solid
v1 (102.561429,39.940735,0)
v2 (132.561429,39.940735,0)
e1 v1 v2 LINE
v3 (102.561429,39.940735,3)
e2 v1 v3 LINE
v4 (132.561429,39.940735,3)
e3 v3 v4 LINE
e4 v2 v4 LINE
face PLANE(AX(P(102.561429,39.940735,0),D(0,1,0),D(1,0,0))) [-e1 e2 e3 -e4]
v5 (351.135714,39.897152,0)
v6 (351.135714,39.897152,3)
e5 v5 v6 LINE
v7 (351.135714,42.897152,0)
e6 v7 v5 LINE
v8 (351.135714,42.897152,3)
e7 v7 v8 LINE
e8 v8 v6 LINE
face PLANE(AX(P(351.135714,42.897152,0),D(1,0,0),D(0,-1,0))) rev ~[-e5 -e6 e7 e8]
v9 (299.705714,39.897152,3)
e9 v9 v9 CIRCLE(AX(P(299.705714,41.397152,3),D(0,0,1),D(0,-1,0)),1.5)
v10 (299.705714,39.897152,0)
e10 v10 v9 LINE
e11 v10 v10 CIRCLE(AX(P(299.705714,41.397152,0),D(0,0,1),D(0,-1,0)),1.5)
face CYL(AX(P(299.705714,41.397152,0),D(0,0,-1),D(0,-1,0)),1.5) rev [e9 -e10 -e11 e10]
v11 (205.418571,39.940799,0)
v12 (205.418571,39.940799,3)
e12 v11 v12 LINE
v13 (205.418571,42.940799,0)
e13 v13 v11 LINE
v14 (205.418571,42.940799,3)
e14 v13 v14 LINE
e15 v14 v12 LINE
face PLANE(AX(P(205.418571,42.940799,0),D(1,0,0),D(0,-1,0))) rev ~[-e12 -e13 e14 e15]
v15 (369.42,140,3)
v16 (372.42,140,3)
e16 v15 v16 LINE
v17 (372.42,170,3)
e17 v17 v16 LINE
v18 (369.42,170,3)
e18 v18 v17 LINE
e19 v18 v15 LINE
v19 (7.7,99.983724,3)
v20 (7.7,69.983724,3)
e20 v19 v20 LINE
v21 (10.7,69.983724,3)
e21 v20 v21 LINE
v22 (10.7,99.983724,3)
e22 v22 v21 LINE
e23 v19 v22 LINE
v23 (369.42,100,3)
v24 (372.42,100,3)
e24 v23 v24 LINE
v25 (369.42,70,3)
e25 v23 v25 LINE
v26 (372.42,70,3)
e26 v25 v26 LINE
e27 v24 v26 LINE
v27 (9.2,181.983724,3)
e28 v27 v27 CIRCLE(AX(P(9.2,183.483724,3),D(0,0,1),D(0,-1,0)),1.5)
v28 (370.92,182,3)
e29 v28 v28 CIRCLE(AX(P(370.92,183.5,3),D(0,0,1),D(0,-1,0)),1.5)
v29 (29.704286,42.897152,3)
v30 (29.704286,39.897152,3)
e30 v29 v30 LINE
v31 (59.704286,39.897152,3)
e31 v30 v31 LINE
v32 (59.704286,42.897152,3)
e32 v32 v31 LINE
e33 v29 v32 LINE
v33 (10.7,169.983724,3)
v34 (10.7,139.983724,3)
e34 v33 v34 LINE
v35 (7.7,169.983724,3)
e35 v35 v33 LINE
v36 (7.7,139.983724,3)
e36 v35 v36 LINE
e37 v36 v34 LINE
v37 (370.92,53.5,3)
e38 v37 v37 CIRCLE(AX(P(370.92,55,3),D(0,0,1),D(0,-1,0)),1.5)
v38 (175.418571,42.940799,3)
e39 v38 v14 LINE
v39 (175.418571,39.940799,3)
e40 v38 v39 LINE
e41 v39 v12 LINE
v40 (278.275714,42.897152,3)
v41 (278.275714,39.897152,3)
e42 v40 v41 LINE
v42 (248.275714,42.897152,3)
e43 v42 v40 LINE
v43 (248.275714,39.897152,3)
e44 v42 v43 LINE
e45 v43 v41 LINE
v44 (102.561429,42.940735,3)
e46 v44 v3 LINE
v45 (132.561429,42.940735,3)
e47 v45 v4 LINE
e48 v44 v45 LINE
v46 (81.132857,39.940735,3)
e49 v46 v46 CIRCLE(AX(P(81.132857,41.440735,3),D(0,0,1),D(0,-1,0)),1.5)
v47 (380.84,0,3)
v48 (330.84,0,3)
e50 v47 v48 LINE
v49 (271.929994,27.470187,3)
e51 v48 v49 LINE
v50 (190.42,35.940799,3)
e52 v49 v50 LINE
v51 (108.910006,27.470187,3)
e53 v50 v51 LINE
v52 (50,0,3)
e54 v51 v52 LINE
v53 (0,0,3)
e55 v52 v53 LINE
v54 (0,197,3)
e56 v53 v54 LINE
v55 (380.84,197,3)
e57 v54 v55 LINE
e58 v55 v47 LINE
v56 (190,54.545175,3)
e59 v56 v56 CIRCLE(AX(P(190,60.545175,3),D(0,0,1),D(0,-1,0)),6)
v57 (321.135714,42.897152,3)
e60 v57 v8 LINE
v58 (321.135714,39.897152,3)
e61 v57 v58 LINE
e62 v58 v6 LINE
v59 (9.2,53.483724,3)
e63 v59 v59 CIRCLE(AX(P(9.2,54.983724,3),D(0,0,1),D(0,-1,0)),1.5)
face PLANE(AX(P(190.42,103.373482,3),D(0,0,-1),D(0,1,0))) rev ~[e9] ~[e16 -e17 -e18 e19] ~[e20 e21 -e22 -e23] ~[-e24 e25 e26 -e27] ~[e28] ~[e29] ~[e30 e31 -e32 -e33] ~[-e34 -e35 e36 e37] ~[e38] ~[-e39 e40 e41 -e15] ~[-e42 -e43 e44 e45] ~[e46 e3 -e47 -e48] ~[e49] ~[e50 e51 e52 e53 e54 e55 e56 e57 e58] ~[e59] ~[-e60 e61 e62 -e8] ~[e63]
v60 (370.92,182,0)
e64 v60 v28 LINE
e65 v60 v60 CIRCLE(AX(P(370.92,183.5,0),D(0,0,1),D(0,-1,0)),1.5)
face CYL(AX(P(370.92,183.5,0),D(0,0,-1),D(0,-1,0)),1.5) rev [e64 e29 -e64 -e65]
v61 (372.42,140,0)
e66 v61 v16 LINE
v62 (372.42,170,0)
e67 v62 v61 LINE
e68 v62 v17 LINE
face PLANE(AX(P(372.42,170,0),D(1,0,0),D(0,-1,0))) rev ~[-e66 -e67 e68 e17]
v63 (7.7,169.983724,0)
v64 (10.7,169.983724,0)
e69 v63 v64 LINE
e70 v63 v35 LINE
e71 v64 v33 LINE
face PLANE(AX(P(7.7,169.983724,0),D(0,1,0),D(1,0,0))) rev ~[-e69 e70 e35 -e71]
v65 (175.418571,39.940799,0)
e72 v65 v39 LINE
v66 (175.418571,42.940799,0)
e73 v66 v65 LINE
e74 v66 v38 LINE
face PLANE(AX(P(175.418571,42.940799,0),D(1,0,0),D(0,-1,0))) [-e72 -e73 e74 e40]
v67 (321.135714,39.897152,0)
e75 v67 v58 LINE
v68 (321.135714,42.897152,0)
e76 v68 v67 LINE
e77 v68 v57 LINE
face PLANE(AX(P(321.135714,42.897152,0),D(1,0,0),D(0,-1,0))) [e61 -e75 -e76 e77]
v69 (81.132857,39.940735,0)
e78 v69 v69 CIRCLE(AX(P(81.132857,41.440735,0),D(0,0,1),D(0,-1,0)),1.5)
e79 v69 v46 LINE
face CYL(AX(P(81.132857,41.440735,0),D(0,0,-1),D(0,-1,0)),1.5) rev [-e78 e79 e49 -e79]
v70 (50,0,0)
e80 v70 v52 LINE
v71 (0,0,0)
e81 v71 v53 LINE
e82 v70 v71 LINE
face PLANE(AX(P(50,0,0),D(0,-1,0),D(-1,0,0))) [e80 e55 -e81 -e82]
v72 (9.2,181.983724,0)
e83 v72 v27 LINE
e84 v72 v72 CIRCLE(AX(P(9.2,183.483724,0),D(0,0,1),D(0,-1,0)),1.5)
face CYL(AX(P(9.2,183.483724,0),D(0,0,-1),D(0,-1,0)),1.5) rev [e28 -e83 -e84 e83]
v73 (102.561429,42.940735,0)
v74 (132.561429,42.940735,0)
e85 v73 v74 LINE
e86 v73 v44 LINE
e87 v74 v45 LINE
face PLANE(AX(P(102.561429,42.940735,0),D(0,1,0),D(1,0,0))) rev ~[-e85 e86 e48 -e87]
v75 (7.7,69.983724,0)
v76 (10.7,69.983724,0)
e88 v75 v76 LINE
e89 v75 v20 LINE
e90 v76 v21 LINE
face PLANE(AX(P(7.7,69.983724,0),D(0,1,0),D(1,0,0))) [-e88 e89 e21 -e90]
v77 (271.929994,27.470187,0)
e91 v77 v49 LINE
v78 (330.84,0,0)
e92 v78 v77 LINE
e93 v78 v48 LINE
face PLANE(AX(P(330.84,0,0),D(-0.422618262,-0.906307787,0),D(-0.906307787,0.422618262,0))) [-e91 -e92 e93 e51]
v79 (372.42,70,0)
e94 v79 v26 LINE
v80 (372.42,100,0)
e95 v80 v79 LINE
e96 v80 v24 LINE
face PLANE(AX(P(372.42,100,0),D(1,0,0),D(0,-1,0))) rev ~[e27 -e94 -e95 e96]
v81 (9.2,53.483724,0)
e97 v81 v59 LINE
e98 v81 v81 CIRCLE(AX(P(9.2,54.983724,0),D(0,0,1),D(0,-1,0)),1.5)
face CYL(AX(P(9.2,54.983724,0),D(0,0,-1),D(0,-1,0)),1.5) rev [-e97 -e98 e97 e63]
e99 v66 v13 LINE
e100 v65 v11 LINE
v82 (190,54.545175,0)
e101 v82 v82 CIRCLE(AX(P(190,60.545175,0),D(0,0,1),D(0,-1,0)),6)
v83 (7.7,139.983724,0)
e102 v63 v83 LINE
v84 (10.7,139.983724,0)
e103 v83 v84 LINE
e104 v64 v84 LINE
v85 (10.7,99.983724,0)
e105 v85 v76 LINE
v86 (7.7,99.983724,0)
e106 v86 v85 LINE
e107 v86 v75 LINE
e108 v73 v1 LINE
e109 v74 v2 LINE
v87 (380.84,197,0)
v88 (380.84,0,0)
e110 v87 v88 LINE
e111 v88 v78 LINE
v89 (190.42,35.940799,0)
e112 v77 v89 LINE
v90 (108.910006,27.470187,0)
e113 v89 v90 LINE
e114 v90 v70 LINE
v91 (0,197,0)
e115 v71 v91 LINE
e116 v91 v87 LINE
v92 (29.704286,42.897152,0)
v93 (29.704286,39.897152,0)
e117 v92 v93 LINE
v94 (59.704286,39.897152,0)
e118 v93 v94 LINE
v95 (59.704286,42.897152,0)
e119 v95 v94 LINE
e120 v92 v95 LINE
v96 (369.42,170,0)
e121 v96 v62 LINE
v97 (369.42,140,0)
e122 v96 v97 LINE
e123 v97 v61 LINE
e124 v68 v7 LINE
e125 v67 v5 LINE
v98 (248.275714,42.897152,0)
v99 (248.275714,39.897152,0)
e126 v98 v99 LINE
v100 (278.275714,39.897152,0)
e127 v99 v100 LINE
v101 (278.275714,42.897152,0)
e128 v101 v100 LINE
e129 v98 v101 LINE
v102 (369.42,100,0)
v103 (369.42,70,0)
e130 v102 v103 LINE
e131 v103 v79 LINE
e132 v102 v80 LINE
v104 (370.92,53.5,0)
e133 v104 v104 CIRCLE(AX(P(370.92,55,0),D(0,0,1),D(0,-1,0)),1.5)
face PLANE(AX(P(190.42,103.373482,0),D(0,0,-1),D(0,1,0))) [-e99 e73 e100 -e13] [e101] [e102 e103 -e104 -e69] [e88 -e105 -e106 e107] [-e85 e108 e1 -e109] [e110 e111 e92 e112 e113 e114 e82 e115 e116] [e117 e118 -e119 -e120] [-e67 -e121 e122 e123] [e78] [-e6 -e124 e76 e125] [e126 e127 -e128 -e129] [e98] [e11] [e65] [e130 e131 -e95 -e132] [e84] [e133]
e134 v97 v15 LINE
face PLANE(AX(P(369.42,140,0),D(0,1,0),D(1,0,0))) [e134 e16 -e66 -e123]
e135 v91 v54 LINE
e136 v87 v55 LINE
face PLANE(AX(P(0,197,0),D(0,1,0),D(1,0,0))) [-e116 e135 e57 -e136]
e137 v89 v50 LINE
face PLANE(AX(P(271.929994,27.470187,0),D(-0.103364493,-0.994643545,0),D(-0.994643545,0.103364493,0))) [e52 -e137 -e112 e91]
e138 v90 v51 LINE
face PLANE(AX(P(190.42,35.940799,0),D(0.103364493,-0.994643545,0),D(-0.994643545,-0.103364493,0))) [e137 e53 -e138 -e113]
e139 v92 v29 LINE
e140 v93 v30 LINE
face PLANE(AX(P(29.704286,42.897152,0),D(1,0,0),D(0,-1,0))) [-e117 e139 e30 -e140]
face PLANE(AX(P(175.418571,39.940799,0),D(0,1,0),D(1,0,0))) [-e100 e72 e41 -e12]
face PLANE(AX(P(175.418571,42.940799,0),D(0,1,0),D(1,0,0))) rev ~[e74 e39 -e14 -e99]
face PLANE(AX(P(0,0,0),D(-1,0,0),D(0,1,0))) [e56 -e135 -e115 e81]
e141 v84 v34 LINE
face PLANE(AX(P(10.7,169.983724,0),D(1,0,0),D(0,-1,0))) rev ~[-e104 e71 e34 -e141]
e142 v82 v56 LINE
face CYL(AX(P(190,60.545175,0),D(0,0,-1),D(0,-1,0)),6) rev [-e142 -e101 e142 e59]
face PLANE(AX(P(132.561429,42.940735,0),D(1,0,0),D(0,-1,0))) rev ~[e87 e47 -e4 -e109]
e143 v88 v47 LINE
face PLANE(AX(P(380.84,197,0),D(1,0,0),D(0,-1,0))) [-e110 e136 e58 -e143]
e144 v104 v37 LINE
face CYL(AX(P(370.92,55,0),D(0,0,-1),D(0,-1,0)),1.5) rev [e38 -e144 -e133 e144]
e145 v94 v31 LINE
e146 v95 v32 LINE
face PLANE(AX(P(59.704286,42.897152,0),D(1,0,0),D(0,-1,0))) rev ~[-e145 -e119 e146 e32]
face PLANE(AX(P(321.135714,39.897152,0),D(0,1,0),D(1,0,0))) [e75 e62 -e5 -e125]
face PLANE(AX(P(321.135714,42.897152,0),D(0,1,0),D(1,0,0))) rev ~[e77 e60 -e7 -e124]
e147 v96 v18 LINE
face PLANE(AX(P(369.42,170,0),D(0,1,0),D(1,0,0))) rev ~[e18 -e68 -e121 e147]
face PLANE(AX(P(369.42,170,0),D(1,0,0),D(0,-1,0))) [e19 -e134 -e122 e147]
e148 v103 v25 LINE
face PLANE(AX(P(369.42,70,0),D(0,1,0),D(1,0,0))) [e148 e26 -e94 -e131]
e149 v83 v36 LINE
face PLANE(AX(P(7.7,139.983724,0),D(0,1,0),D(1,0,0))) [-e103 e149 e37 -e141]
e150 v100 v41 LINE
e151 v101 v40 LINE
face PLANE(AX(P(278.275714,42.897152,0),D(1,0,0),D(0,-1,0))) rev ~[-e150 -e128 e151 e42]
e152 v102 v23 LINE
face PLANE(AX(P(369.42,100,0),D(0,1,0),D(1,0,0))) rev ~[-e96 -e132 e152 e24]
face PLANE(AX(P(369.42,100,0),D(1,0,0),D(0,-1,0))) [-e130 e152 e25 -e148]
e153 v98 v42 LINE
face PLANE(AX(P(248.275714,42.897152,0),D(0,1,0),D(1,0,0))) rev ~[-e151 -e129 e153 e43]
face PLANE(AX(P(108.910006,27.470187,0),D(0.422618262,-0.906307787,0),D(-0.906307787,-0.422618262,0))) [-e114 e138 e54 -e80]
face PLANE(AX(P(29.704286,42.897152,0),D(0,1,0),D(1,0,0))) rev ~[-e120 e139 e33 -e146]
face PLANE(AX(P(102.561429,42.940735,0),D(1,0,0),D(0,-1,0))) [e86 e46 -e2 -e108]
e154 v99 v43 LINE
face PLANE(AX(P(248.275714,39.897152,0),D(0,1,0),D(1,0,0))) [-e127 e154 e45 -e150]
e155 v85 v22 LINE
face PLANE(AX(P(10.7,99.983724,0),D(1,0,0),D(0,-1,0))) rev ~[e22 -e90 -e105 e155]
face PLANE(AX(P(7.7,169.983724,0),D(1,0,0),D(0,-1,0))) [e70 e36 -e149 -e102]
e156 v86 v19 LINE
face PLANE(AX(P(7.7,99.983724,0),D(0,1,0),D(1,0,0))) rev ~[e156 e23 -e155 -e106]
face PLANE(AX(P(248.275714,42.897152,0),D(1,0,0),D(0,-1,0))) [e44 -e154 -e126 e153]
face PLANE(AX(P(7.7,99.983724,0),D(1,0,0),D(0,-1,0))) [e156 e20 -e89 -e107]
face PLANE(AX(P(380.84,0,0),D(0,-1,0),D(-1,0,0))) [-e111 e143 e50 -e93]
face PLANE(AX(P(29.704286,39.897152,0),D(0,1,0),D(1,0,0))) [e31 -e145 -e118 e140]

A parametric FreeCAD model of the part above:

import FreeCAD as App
import Part
import Sketcher
Q = App.Units.Quantity

doc = App.newDocument("Part")
body = doc.addObject("PartDesign::Body", "Body")

sketch1 = doc.addObject("Sketcher::SketchObject", "Sketch")
body.addObject(sketch1)
sketch1.AttachmentSupport = (doc.XY_Plane, [""])
sketch1.MapMode = "FlatFace"
sketch1.addGeometry([
    Part.LineSegment(App.Vector(380.8, 197, 0), App.Vector(0, 197, 0)),
    Part.LineSegment(App.Vector(0, 197, 0), App.Vector(0, 0, 0)),
    Part.LineSegment(App.Vector(0, 0, 0), App.Vector(50, 0, 0)),
    Part.LineSegment(App.Vector(50, 0, 0), App.Vector(108.9, 27.5, 0)),
    Part.LineSegment(App.Vector(108.9, 27.5, 0), App.Vector(190.4, 35.9, 0)),
    Part.LineSegment(App.Vector(190.4, 35.9, 0), App.Vector(271.9, 27.5, 0)),
    Part.LineSegment(App.Vector(271.9, 27.5, 0), App.Vector(330.8, 0, 0)),
    Part.LineSegment(App.Vector(330.8, 0, 0), App.Vector(380.8, 0, 0)),
    Part.LineSegment(App.Vector(380.8, 0, 0), App.Vector(380.8, 197, 0)),
    Part.Circle(App.Vector(9.2, 55, 0), App.Vector(0, 0, 1), 1.5),
    Part.LineSegment(App.Vector(29.7, 42.9, 0), App.Vector(59.7, 42.9, 0)),
    Part.LineSegment(App.Vector(59.7, 42.9, 0), App.Vector(59.7, 39.9, 0)),
    Part.LineSegment(App.Vector(59.7, 39.9, 0), App.Vector(29.7, 39.9, 0)),
    Part.LineSegment(App.Vector(29.7, 39.9, 0), App.Vector(29.7, 42.9, 0)),
    Part.Circle(App.Vector(81.1, 41.4, 0), App.Vector(0, 0, 1), 1.5),
    Part.LineSegment(App.Vector(7.7, 100, 0), App.Vector(10.7, 100, 0)),
    Part.LineSegment(App.Vector(10.7, 100, 0), App.Vector(10.7, 70, 0)),
    Part.LineSegment(App.Vector(10.7, 70, 0), App.Vector(7.7, 70, 0)),
    Part.LineSegment(App.Vector(7.7, 70, 0), App.Vector(7.7, 100, 0)),
    Part.LineSegment(App.Vector(102.6, 42.9, 0), App.Vector(132.6, 42.9, 0)),
    Part.LineSegment(App.Vector(132.6, 42.9, 0), App.Vector(132.6, 39.9, 0)),
    Part.LineSegment(App.Vector(132.6, 39.9, 0), App.Vector(102.6, 39.9, 0)),
    Part.LineSegment(App.Vector(102.6, 39.9, 0), App.Vector(102.6, 42.9, 0)),
    Part.Circle(App.Vector(190, 60.5, 0), App.Vector(0, 0, 1), 6),
    Part.LineSegment(App.Vector(7.7, 170, 0), App.Vector(10.7, 170, 0)),
    Part.LineSegment(App.Vector(10.7, 170, 0), App.Vector(10.7, 140, 0)),
    Part.LineSegment(App.Vector(10.7, 140, 0), App.Vector(7.7, 140, 0)),
    Part.LineSegment(App.Vector(7.7, 140, 0), App.Vector(7.7, 170, 0)),
    Part.Circle(App.Vector(9.2, 183.5, 0), App.Vector(0, 0, 1), 1.5),
    Part.LineSegment(App.Vector(175.4, 42.9, 0), App.Vector(205.4, 42.9, 0)),
    Part.LineSegment(App.Vector(205.4, 42.9, 0), App.Vector(205.4, 39.9, 0)),
    Part.LineSegment(App.Vector(205.4, 39.9, 0), App.Vector(175.4, 39.9, 0)),
    Part.LineSegment(App.Vector(175.4, 39.9, 0), App.Vector(175.4, 42.9, 0)),
    Part.LineSegment(App.Vector(248.3, 42.9, 0), App.Vector(278.3, 42.9, 0)),
    Part.LineSegment(App.Vector(278.3, 42.9, 0), App.Vector(278.3, 39.9, 0)),
    Part.LineSegment(App.Vector(278.3, 39.9, 0), App.Vector(248.3, 39.9, 0)),
    Part.LineSegment(App.Vector(248.3, 39.9, 0), App.Vector(248.3, 42.9, 0)),
    Part.Circle(App.Vector(299.7, 41.4, 0), App.Vector(0, 0, 1), 1.5),
    Part.LineSegment(App.Vector(321.1, 42.9, 0), App.Vector(351.1, 42.9, 0)),
    Part.LineSegment(App.Vector(351.1, 42.9, 0), App.Vector(351.1, 39.9, 0)),
    Part.LineSegment(App.Vector(351.1, 39.9, 0), App.Vector(321.1, 39.9, 0)),
    Part.LineSegment(App.Vector(321.1, 39.9, 0), App.Vector(321.1, 42.9, 0)),
    Part.Circle(App.Vector(370.9, 55, 0), App.Vector(0, 0, 1), 1.5),
    Part.LineSegment(App.Vector(369.4, 100, 0), App.Vector(372.4, 100, 0)),
    Part.LineSegment(App.Vector(372.4, 100, 0), App.Vector(372.4, 70, 0)),
    Part.LineSegment(App.Vector(372.4, 70, 0), App.Vector(369.4, 70, 0)),
    Part.LineSegment(App.Vector(369.4, 70, 0), App.Vector(369.4, 100, 0)),
    Part.LineSegment(App.Vector(369.4, 170, 0), App.Vector(372.4, 170, 0)),
    Part.LineSegment(App.Vector(372.4, 170, 0), App.Vector(372.4, 140, 0)),
    Part.LineSegment(App.Vector(372.4, 140, 0), App.Vector(369.4, 140, 0)),
    Part.LineSegment(App.Vector(369.4, 140, 0), App.Vector(369.4, 170, 0)),
    Part.Circle(App.Vector(370.9, 183.5, 0), App.Vector(0, 0, 1), 1.5),
], False)
sketch1.addConstraint([
    Sketcher.Constraint("Coincident", 0, 2, 1, 1),
    Sketcher.Constraint("Coincident", 1, 2, 2, 1),
    Sketcher.Constraint("Coincident", 2, 2, 3, 1),
    Sketcher.Constraint("Coincident", 3, 2, 4, 1),
    Sketcher.Constraint("Coincident", 4, 2, 5, 1),
    Sketcher.Constraint("Coincident", 5, 2, 6, 1),
    Sketcher.Constraint("Coincident", 6, 2, 7, 1),
    Sketcher.Constraint("Coincident", 7, 2, 8, 1),
    Sketcher.Constraint("Coincident", 8, 2, 0, 1),
    Sketcher.Constraint("Coincident", 10, 2, 11, 1),
    Sketcher.Constraint("Coincident", 11, 2, 12, 1),
    Sketcher.Constraint("Coincident", 12, 2, 13, 1),
    Sketcher.Constraint("Coincident", 13, 2, 10, 1),
    Sketcher.Constraint("Coincident", 15, 2, 16, 1),
    Sketcher.Constraint("Coincident", 16, 2, 17, 1),
    Sketcher.Constraint("Coincident", 17, 2, 18, 1),
    Sketcher.Constraint("Coincident", 18, 2, 15, 1),
    Sketcher.Constraint("Coincident", 19, 2, 20, 1),
    Sketcher.Constraint("Coincident", 20, 2, 21, 1),
    Sketcher.Constraint("Coincident", 21, 2, 22, 1),
    Sketcher.Constraint("Coincident", 22, 2, 19, 1),
    Sketcher.Constraint("Coincident", 24, 2, 25, 1),
    Sketcher.Constraint("Coincident", 25, 2, 26, 1),
    Sketcher.Constraint("Coincident", 26, 2, 27, 1),
    Sketcher.Constraint("Coincident", 27, 2, 24, 1),
    Sketcher.Constraint("Coincident", 29, 2, 30, 1),
    Sketcher.Constraint("Coincident", 30, 2, 31, 1),
    Sketcher.Constraint("Coincident", 31, 2, 32, 1),
    Sketcher.Constraint("Coincident", 32, 2, 29, 1),
    Sketcher.Constraint("Coincident", 33, 2, 34, 1),
    Sketcher.Constraint("Coincident", 34, 2, 35, 1),
    Sketcher.Constraint("Coincident", 35, 2, 36, 1),
    Sketcher.Constraint("Coincident", 36, 2, 33, 1),
    Sketcher.Constraint("Coincident", 38, 2, 39, 1),
    Sketcher.Constraint("Coincident", 39, 2, 40, 1),
    Sketcher.Constraint("Coincident", 40, 2, 41, 1),
    Sketcher.Constraint("Coincident", 41, 2, 38, 1),
    Sketcher.Constraint("Coincident", 43, 2, 44, 1),
    Sketcher.Constraint("Coincident", 44, 2, 45, 1),
    Sketcher.Constraint("Coincident", 45, 2, 46, 1),
    Sketcher.Constraint("Coincident", 46, 2, 43, 1),
    Sketcher.Constraint("Coincident", 47, 2, 48, 1),
    Sketcher.Constraint("Coincident", 48, 2, 49, 1),
    Sketcher.Constraint("Coincident", 49, 2, 50, 1),
    Sketcher.Constraint("Coincident", 50, 2, 47, 1),
    Sketcher.Constraint("Horizontal", 0),
    Sketcher.Constraint("Vertical", 1),
    Sketcher.Constraint("Horizontal", 2),
    Sketcher.Constraint("Horizontal", 7),
    Sketcher.Constraint("Vertical", 8),
    Sketcher.Constraint("Horizontal", 10),
    Sketcher.Constraint("Vertical", 11),
    Sketcher.Constraint("Horizontal", 12),
    Sketcher.Constraint("Vertical", 13),
    Sketcher.Constraint("Horizontal", 15),
    Sketcher.Constraint("Vertical", 16),
    Sketcher.Constraint("Horizontal", 17),
    Sketcher.Constraint("Vertical", 18),
    Sketcher.Constraint("Horizontal", 19),
    Sketcher.Constraint("Vertical", 20),
    Sketcher.Constraint("Horizontal", 21),
    Sketcher.Constraint("Vertical", 22),
    Sketcher.Constraint("Horizontal", 24),
    Sketcher.Constraint("Vertical", 25),
    Sketcher.Constraint("Horizontal", 26),
    Sketcher.Constraint("Vertical", 27),
    Sketcher.Constraint("Horizontal", 29),
    Sketcher.Constraint("Vertical", 30),
    Sketcher.Constraint("Horizontal", 31),
    Sketcher.Constraint("Vertical", 32),
    Sketcher.Constraint("Horizontal", 33),
    Sketcher.Constraint("Vertical", 34),
    Sketcher.Constraint("Horizontal", 35),
    Sketcher.Constraint("Vertical", 36),
    Sketcher.Constraint("Horizontal", 38),
    Sketcher.Constraint("Vertical", 39),
    Sketcher.Constraint("Horizontal", 40),
    Sketcher.Constraint("Vertical", 41),
    Sketcher.Constraint("Horizontal", 43),
    Sketcher.Constraint("Vertical", 44),
    Sketcher.Constraint("Horizontal", 45),
    Sketcher.Constraint("Vertical", 46),
    Sketcher.Constraint("Horizontal", 47),
    Sketcher.Constraint("Vertical", 48),
    Sketcher.Constraint("Horizontal", 49),
    Sketcher.Constraint("Vertical", 50),
    Sketcher.Constraint("Coincident", 1, 2, -1, 1),
    Sketcher.Constraint("Equal", 9, 14),
    Sketcher.Constraint("Equal", 14, 28),
    Sketcher.Constraint("Equal", 28, 37),
    Sketcher.Constraint("Equal", 37, 42),
    Sketcher.Constraint("Equal", 42, 51),
    Sketcher.Constraint("PointOnObject", 6, 2, -1),
    Sketcher.Constraint("Horizontal", 3, 2, 5, 2),
    Sketcher.Constraint("Horizontal", 13, 2, 33, 2),
    Sketcher.Constraint("Horizontal", 12, 2, 34, 2),
    Sketcher.Constraint("Horizontal", 36, 2, 38, 2),
    Sketcher.Constraint("Horizontal", 35, 2, 39, 2),
    Sketcher.Constraint("Vertical", 9, 3, 28, 3),
    Sketcher.Constraint("Vertical", 42, 3, 51, 3),
    Sketcher.Constraint("Vertical", 16, 2, 24, 2),
    Sketcher.Constraint("Vertical", 18, 2, 26, 2),
    Sketcher.Constraint("Vertical", 44, 2, 47, 2),
    Sketcher.Constraint("Vertical", 46, 2, 49, 2),
    Sketcher.Constraint("Equal", 2, 7),
    Sketcher.Constraint("Equal", 12, 19),
    Sketcher.Constraint("Equal", 21, 29),
    Sketcher.Constraint("Equal", 31, 33),
    Sketcher.Constraint("Equal", 35, 38),
    Sketcher.Constraint("Equal", 26, 43),
    Sketcher.Constraint("Equal", 49, 11),
    Sketcher.Constraint("Equal", 40, 16),
    Sketcher.Constraint("Equal", 13, 20),
    Sketcher.Constraint("Equal", 18, 25),
    Sketcher.Constraint("Equal", 22, 30),
    Sketcher.Constraint("Equal", 27, 44),
    Sketcher.Constraint("Equal", 46, 48),
    Sketcher.Constraint("Equal", 4, 5),
    Sketcher.Constraint("Equal", 3, 6),
    Sketcher.Constraint("Diameter", 9, 3.0),
    Sketcher.Constraint("Diameter", 23, 12.0),
    Sketcher.Constraint("DistanceX", 2, 1, 2, 2, 50.0),
    Sketcher.Constraint("DistanceX", 10, 1, 10, 2, 30.0),
    Sketcher.Constraint("DistanceX", 15, 1, 15, 2, 3.0),
    Sketcher.Constraint("DistanceY", 1, 2, 1, 1, 197.0),
    Sketcher.Constraint("Angle", 3, Q("25 deg")),
    Sketcher.Constraint("Distance", 3, 65.0),
    Sketcher.Constraint("DistanceX", -1, 1, 23, 3, 190.0),
    Sketcher.Constraint("DistanceY", -1, 1, 42, 3, 55.0),
    Sketcher.Constraint("DistanceY", -1, 1, 43, 2, 100.0),
    Sketcher.Constraint("DistanceY", -1, 1, 47, 2, 170.0),
    Sketcher.Constraint("DistanceY", 9, 3, 15, 2, 45.0),
    Sketcher.Constraint("DistanceY", 15, 2, 24, 2, 70.0),
    Sketcher.Constraint("DistanceY", 4, 2, 29, 2, 7.0),
    Sketcher.Constraint("DistanceX", 0, 2, 0, 1, 380.84),
    Sketcher.Constraint("DistanceX", -1, 1, 9, 3, 9.2),
    Sketcher.Constraint("DistanceY", -1, 1, 51, 3, 183.5),
    Sketcher.Constraint("DistanceX", -1, 1, 15, 2, 10.7),
    Sketcher.Constraint("DistanceY", 9, 3, 28, 3, 128.5),
    Sketcher.Constraint("DistanceY", 14, 3, 19, 2, 1.5),
    Sketcher.Constraint("DistanceY", 37, 3, 33, 2, 1.5),
    Sketcher.Constraint("DistanceX", 42, 3, 43, 2, 1.5),
    Sketcher.Constraint("DistanceX", -1, 1, 42, 3, 370.92),
    Sketcher.Constraint("DistanceX", 33, 2, 37, 3, 21.43),
    Sketcher.Constraint("DistanceX", 37, 3, 38, 2, 51.43),
    Sketcher.Constraint("DistanceY", -1, 1, 4, 2, 35.940799),
    Sketcher.Constraint("DistanceY", -1, 1, 37, 3, 41.397152),
    Sketcher.Constraint("DistanceX", -1, 1, 19, 2, 132.561429),
    Sketcher.Constraint("DistanceX", -1, 1, 29, 2, 205.418571),
    Sketcher.Constraint("DistanceY", 14, 3, 9, 3, 13.542989),
    Sketcher.Constraint("DistanceY", 14, 3, 23, 3, 19.10444),
    Sketcher.Constraint("DistanceX", 14, 3, 3, 2, 27.777149),
    Sketcher.Constraint("DistanceX", 5, 2, 37, 3, 27.77572),
    Sketcher.Constraint("DistanceX", 10, 2, 14, 3, 21.428571),
    Sketcher.Constraint("DistanceY", -1, 1, 9, 3, 54.983724),
])
pad1 = doc.addObject("PartDesign::Pad", "Pad")
body.addObject(pad1)
pad1.Profile = sketch1
pad1.Length = 3

doc.recompute()
